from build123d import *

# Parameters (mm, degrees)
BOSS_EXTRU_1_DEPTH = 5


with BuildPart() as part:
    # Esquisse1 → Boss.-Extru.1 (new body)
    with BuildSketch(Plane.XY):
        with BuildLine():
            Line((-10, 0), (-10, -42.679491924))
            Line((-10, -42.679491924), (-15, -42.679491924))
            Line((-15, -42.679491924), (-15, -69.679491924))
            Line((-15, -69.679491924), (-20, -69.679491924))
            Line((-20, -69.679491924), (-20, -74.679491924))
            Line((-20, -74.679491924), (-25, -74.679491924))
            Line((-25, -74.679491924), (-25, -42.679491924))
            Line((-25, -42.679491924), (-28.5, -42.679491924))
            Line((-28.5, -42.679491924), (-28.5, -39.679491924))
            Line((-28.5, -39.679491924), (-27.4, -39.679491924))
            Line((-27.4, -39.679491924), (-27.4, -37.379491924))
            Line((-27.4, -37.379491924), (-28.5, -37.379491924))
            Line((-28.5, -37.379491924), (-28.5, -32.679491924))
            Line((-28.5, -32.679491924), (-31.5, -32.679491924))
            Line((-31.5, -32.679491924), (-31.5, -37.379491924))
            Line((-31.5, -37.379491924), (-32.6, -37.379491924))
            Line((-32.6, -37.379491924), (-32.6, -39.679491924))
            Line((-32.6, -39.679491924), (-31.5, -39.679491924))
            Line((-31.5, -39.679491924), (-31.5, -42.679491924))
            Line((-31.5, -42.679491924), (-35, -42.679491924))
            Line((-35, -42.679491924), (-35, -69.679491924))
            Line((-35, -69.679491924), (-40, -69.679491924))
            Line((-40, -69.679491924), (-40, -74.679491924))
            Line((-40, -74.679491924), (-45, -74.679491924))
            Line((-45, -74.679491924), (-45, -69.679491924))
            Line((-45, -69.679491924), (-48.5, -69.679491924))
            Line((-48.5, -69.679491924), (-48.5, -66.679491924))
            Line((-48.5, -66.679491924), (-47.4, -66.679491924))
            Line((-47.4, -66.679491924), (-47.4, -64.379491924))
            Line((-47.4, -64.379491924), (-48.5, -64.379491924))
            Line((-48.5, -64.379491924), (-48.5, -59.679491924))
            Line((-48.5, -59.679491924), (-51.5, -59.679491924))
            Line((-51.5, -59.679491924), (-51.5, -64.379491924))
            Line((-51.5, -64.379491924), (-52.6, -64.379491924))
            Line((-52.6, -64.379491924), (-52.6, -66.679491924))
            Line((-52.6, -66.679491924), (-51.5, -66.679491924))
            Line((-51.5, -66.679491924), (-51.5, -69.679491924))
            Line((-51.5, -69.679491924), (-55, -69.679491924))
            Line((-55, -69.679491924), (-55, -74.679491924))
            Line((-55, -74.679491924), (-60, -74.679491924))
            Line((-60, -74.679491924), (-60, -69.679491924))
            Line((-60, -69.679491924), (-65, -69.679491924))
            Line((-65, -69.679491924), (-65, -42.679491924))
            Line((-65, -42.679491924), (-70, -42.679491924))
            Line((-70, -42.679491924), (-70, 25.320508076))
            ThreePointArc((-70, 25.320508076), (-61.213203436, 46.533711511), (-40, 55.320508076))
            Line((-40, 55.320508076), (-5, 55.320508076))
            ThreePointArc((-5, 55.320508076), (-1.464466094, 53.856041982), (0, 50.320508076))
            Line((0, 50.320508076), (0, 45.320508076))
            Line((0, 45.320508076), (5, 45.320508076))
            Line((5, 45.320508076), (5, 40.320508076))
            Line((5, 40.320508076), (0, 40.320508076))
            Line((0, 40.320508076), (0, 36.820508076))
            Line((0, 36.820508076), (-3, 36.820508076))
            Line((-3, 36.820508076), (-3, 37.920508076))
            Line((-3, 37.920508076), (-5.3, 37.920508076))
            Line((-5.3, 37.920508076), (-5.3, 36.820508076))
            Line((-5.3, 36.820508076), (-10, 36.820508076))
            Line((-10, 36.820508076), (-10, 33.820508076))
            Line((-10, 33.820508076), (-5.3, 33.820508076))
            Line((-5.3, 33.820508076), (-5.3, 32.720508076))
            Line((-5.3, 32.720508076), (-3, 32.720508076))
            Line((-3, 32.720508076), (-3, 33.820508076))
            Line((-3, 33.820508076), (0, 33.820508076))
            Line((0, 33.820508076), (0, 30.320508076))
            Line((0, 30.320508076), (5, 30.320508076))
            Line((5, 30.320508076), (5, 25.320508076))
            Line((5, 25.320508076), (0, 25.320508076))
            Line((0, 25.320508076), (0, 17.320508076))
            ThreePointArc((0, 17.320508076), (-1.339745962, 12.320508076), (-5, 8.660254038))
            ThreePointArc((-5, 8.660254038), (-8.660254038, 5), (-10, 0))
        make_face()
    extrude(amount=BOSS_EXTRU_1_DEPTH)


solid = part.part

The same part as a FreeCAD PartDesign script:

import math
import FreeCAD as App
import Part
import Sketcher

V = App.Vector

doc = App.newDocument("Part")
params = doc.addObject("Spreadsheet::Sheet", "Params")
for row, (alias, value) in enumerate([
    ("sketch1_radius", "10 mm"),
    ("sketch1_radius2", "30 mm"),
    ("sketch1_width", "3 mm"),
    ("sketch1_height", "8 mm"),
    ("sketch1_height2", "68 mm"),
    ("pad1_length", "5 mm"),
], start=1):
    params.set(f"A{row}", alias)
    params.set(f"B{row}", "=" + value)
    params.setAlias(f"B{row}", alias)

body = doc.addObject("PartDesign::Body", "Body")

# Sketch on XY plane
sketch1 = doc.addObject("Sketcher::SketchObject", "Sketch")
body.addObject(sketch1)
sketch1.AttachmentSupport = (doc.XY_Plane, [""])
sketch1.MapMode = "FlatFace"
sketch1.addGeometry(Part.LineSegment(V(-10, -42.679492, 0), V(-10, 0, 0)), False)
sketch1.addGeometry(Part.ArcOfCircle(Part.Circle(V(0, 0, 0), V(0, 0, 1), 10), math.radians(120), math.radians(180)), False)
sketch1.addGeometry(Part.ArcOfCircle(Part.Circle(V(-10, 17.320508, 0), V(0, 0, 1), 10), math.radians(-60), math.radians(0)), False)
sketch1.addGeometry(Part.LineSegment(V(0, 17.320508, 0), V(0, 25.320508, 0)), False)
sketch1.addGeometry(Part.LineSegment(V(0, 25.320508, 0), V(5, 25.320508, 0)), False)
sketch1.addGeometry(Part.LineSegment(V(5, 25.320508, 0), V(5, 30.320508, 0)), False)
sketch1.addGeometry(Part.LineSegment(V(5, 30.320508, 0), V(0, 30.320508, 0)), False)
sketch1.addGeometry(Part.LineSegment(V(0, 30.320508, 0), V(0, 33.820508, 0)), False)
sketch1.addGeometry(Part.LineSegment(V(0, 33.820508, 0), V(-3, 33.820508, 0)), False)
sketch1.addGeometry(Part.LineSegment(V(-3, 33.820508, 0), V(-3, 32.720508, 0)), False)
sketch1.addGeometry(Part.LineSegment(V(-3, 32.720508, 0), V(-5.3, 32.720508, 0)), False)
sketch1.addGeometry(Part.LineSegment(V(-5.3, 32.720508, 0), V(-5.3, 33.820508, 0)), False)
sketch1.addGeometry(Part.LineSegment(V(-5.3, 33.820508, 0), V(-10, 33.820508, 0)), False)
sketch1.addGeometry(Part.LineSegment(V(-10, 33.820508, 0), V(-10, 36.820508, 0)), False)
sketch1.addGeometry(Part.LineSegment(V(-10, 36.820508, 0), V(-5.3, 36.820508, 0)), False)
sketch1.addGeometry(Part.LineSegment(V(-5.3, 36.820508, 0), V(-5.3, 37.920508, 0)), False)
sketch1.addGeometry(Part.LineSegment(V(-5.3, 37.920508, 0), V(-3, 37.920508, 0)), False)
sketch1.addGeometry(Part.LineSegment(V(-3, 37.920508, 0), V(-3, 36.820508, 0)), False)
sketch1.addGeometry(Part.LineSegment(V(-3, 36.820508, 0), V(0, 36.820508, 0)), False)
sketch1.addGeometry(Part.LineSegment(V(0, 36.820508, 0), V(0, 40.320508, 0)), False)
sketch1.addGeometry(Part.LineSegment(V(0, 40.320508, 0), V(5, 40.320508, 0)), False)
sketch1.addGeometry(Part.LineSegment(V(5, 40.320508, 0), V(5, 45.320508, 0)), False)
sketch1.addGeometry(Part.LineSegment(V(5, 45.320508, 0), V(0, 45.320508, 0)), False)
sketch1.addGeometry(Part.LineSegment(V(0, 45.320508, 0), V(0, 50.320508, 0)), False)
sketch1.addGeometry(Part.ArcOfCircle(Part.Circle(V(-5, 50.320508, 0), V(0, 0, 1), 5), math.radians(0), math.radians(90)), False)
sketch1.addGeometry(Part.LineSegment(V(-5, 55.320508, 0), V(-40, 55.320508, 0)), False)
sketch1.addGeometry(Part.ArcOfCircle(Part.Circle(V(-40, 25.320508, 0), V(0, 0, 1), 30), math.radians(90), math.radians(180)), False)
sketch1.addGeometry(Part.LineSegment(V(-70, 25.320508, 0), V(-70, -42.679492, 0)), False)
sketch1.addGeometry(Part.LineSegment(V(-70, -42.679492, 0), V(-65, -42.679492, 0)), False)
sketch1.addGeometry(Part.LineSegment(V(-65, -42.679492, 0), V(-65, -69.679492, 0)), False)
sketch1.addGeometry(Part.LineSegment(V(-65, -69.679492, 0), V(-60, -69.679492, 0)), False)
sketch1.addGeometry(Part.LineSegment(V(-60, -69.679492, 0), V(-60, -74.679492, 0)), False)
sketch1.addGeometry(Part.LineSegment(V(-60, -74.679492, 0), V(-55, -74.679492, 0)), False)
sketch1.addGeometry(Part.LineSegment(V(-55, -74.679492, 0), V(-55, -69.679492, 0)), False)
sketch1.addGeometry(Part.LineSegment(V(-55, -69.679492, 0), V(-51.5, -69.679492, 0)), False)
sketch1.addGeometry(Part.LineSegment(V(-51.5, -69.679492, 0), V(-51.5, -66.679492, 0)), False)
sketch1.addGeometry(Part.LineSegment(V(-51.5, -66.679492, 0), V(-52.6, -66.679492, 0)), False)
sketch1.addGeometry(Part.LineSegment(V(-52.6, -66.679492, 0), V(-52.6, -64.379492, 0)), False)
sketch1.addGeometry(Part.LineSegment(V(-52.6, -64.379492, 0), V(-51.5, -64.379492, 0)), False)
sketch1.addGeometry(Part.LineSegment(V(-51.5, -64.379492, 0), V(-51.5, -59.679492, 0)), False)
sketch1.addGeometry(Part.LineSegment(V(-51.5, -59.679492, 0), V(-48.5, -59.679492, 0)), False)
sketch1.addGeometry(Part.LineSegment(V(-48.5, -59.679492, 0), V(-48.5, -64.379492, 0)), False)
sketch1.addGeometry(Part.LineSegment(V(-48.5, -64.379492, 0), V(-47.4, -64.379492, 0)), False)
sketch1.addGeometry(Part.LineSegment(V(-47.4, -64.379492, 0), V(-47.4, -66.679492, 0)), False)
sketch1.addGeometry(Part.LineSegment(V(-47.4, -66.679492, 0), V(-48.5, -66.679492, 0)), False)
sketch1.addGeometry(Part.LineSegment(V(-48.5, -66.679492, 0), V(-48.5, -69.679492, 0)), False)
sketch1.addGeometry(Part.LineSegment(V(-48.5, -69.679492, 0), V(-45, -69.679492, 0)), False)
sketch1.addGeometry(Part.LineSegment(V(-45, -69.679492, 0), V(-45, -74.679492, 0)), False)
sketch1.addGeometry(Part.LineSegment(V(-45, -74.679492, 0), V(-40, -74.679492, 0)), False)
sketch1.addGeometry(Part.LineSegment(V(-40, -74.679492, 0), V(-40, -69.679492, 0)), False)
sketch1.addGeometry(Part.LineSegment(V(-40, -69.679492, 0), V(-35, -69.679492, 0)), False)
sketch1.addGeometry(Part.LineSegment(V(-35, -69.679492, 0), V(-35, -42.679492, 0)), False)
sketch1.addGeometry(Part.LineSegment(V(-35, -42.679492, 0), V(-31.5, -42.679492, 0)), False)
sketch1.addGeometry(Part.LineSegment(V(-31.5, -42.679492, 0), V(-31.5, -39.679492, 0)), False)
sketch1.addGeometry(Part.LineSegment(V(-31.5, -39.679492, 0), V(-32.6, -39.679492, 0)), False)
sketch1.addGeometry(Part.LineSegment(V(-32.6, -39.679492, 0), V(-32.6, -37.379492, 0)), False)
sketch1.addGeometry(Part.LineSegment(V(-32.6, -37.379492, 0), V(-31.5, -37.379492, 0)), False)
sketch1.addGeometry(Part.LineSegment(V(-31.5, -37.379492, 0), V(-31.5, -32.679492, 0)), False)
sketch1.addGeometry(Part.LineSegment(V(-31.5, -32.679492, 0), V(-28.5, -32.679492, 0)), False)
sketch1.addGeometry(Part.LineSegment(V(-28.5, -32.679492, 0), V(-28.5, -37.379492, 0)), False)
sketch1.addGeometry(Part.LineSegment(V(-28.5, -37.379492, 0), V(-27.4, -37.379492, 0)), False)
sketch1.addGeometry(Part.LineSegment(V(-27.4, -37.379492, 0), V(-27.4, -39.679492, 0)), False)
sketch1.addGeometry(Part.LineSegment(V(-27.4, -39.679492, 0), V(-28.5, -39.679492, 0)), False)
sketch1.addGeometry(Part.LineSegment(V(-28.5, -39.679492, 0), V(-28.5, -42.679492, 0)), False)
sketch1.addGeometry(Part.LineSegment(V(-28.5, -42.679492, 0), V(-25, -42.679492, 0)), False)
sketch1.addGeometry(Part.LineSegment(V(-25, -42.679492, 0), V(-25, -74.679492, 0)), False)
sketch1.addGeometry(Part.LineSegment(V(-25, -74.679492, 0), V(-20, -74.679492, 0)), False)
sketch1.addGeometry(Part.LineSegment(V(-20, -74.679492, 0), V(-20, -69.679492, 0)), False)
sketch1.addGeometry(Part.LineSegment(V(-20, -69.679492, 0), V(-15, -69.679492, 0)), False)
sketch1.addGeometry(Part.LineSegment(V(-15, -69.679492, 0), V(-15, -42.679492, 0)), False)
sketch1.addGeometry(Part.LineSegment(V(-15, -42.679492, 0), V(-10, -42.679492, 0)), False)
sketch1.addConstraint(Sketcher.Constraint("Tangent", 0, 2, 1, 2))
sketch1.addConstraint(Sketcher.Constraint("Tangent", 1, 1, 2, 1))
sketch1.addConstraint(Sketcher.Constraint("Tangent", 2, 2, 3, 1))
sketch1.addConstraint(Sketcher.Constraint("Coincident", 3, 2, 4, 1))
sketch1.addConstraint(Sketcher.Constraint("Coincident", 4, 2, 5, 1))
sketch1.addConstraint(Sketcher.Constraint("Coincident", 5, 2, 6, 1))
sketch1.addConstraint(Sketcher.Constraint("Coincident", 6, 2, 7, 1))
sketch1.addConstraint(Sketcher.Constraint("Coincident", 7, 2, 8, 1))
sketch1.addConstraint(Sketcher.Constraint("Coincident", 8, 2, 9, 1))
sketch1.addConstraint(Sketcher.Constraint("Coincident", 9, 2, 10, 1))
sketch1.addConstraint(Sketcher.Constraint("Coincident", 10, 2, 11, 1))
sketch1.addConstraint(Sketcher.Constraint("Coincident", 11, 2, 12, 1))
sketch1.addConstraint(Sketcher.Constraint("Coincident", 12, 2, 13, 1))
sketch1.addConstraint(Sketcher.Constraint("Coincident", 13, 2, 14, 1))
sketch1.addConstraint(Sketcher.Constraint("Coincident", 14, 2, 15, 1))
sketch1.addConstraint(Sketcher.Constraint("Coincident", 15, 2, 16, 1))
sketch1.addConstraint(Sketcher.Constraint("Coincident", 16, 2, 17, 1))
sketch1.addConstraint(Sketcher.Constraint("Coincident", 17, 2, 18, 1))
sketch1.addConstraint(Sketcher.Constraint("Coincident", 18, 2, 19, 1))
sketch1.addConstraint(Sketcher.Constraint("Coincident", 19, 2, 20, 1))
sketch1.addConstraint(Sketcher.Constraint("Coincident", 20, 2, 21, 1))
sketch1.addConstraint(Sketcher.Constraint("Coincident", 21, 2, 22, 1))
sketch1.addConstraint(Sketcher.Constraint("Coincident", 22, 2, 23, 1))
sketch1.addConstraint(Sketcher.Constraint("Tangent", 23, 2, 24, 1))
sketch1.addConstraint(Sketcher.Constraint("Tangent", 24, 2, 25, 1))
sketch1.addConstraint(Sketcher.Constraint("Tangent", 25, 2, 26, 1))
sketch1.addConstraint(Sketcher.Constraint("Tangent", 26, 2, 27, 1))
sketch1.addConstraint(Sketcher.Constraint("Coincident", 27, 2, 28, 1))
sketch1.addConstraint(Sketcher.Constraint("Coincident", 28, 2, 29, 1))
sketch1.addConstraint(Sketcher.Constraint("Coincident", 29, 2, 30, 1))
sketch1.addConstraint(Sketcher.Constraint("Coincident", 30, 2, 31, 1))
sketch1.addConstraint(Sketcher.Constraint("Coincident", 31, 2, 32, 1))
sketch1.addConstraint(Sketcher.Constraint("Coincident", 32, 2, 33, 1))
sketch1.addConstraint(Sketcher.Constraint("Coincident", 33, 2, 34, 1))
sketch1.addConstraint(Sketcher.Constraint("Coincident", 34, 2, 35, 1))
sketch1.addConstraint(Sketcher.Constraint("Coincident", 35, 2, 36, 1))
sketch1.addConstraint(Sketcher.Constraint("Coincident", 36, 2, 37, 1))
sketch1.addConstraint(Sketcher.Constraint("Coincident", 37, 2, 38, 1))
sketch1.addConstraint(Sketcher.Constraint("Coincident", 38, 2, 39, 1))
sketch1.addConstraint(Sketcher.Constraint("Coincident", 39, 2, 40, 1))
sketch1.addConstraint(Sketcher.Constraint("Coincident", 40, 2, 41, 1))
sketch1.addConstraint(Sketcher.Constraint("Coincident", 41, 2, 42, 1))
sketch1.addConstraint(Sketcher.Constraint("Coincident", 42, 2, 43, 1))
sketch1.addConstraint(Sketcher.Constraint("Coincident", 43, 2, 44, 1))
sketch1.addConstraint(Sketcher.Constraint("Coincident", 44, 2, 45, 1))
sketch1.addConstraint(Sketcher.Constraint("Coincident", 45, 2, 46, 1))
sketch1.addConstraint(Sketcher.Constraint("Coincident", 46, 2, 47, 1))
sketch1.addConstraint(Sketcher.Constraint("Coincident", 47, 2, 48, 1))
sketch1.addConstraint(Sketcher.Constraint("Coincident", 48, 2, 49, 1))
sketch1.addConstraint(Sketcher.Constraint("Coincident", 49, 2, 50, 1))
sketch1.addConstraint(Sketcher.Constraint("Coincident", 50, 2, 51, 1))
sketch1.addConstraint(Sketcher.Constraint("Coincident", 51, 2, 52, 1))
sketch1.addConstraint(Sketcher.Constraint("Coincident", 52, 2, 53, 1))
sketch1.addConstraint(Sketcher.Constraint("Coincident", 53, 2, 54, 1))
sketch1.addConstraint(Sketcher.Constraint("Coincident", 54, 2, 55, 1))
sketch1.addConstraint(Sketcher.Constraint("Coincident", 55, 2, 56, 1))
sketch1.addConstraint(Sketcher.Constraint("Coincident", 56, 2, 57, 1))
sketch1.addConstraint(Sketcher.Constraint("Coincident", 57, 2, 58, 1))
sketch1.addConstraint(Sketcher.Constraint("Coincident", 58, 2, 59, 1))
sketch1.addConstraint(Sketcher.Constraint("Coincident", 59, 2, 60, 1))
sketch1.addConstraint(Sketcher.Constraint("Coincident", 60, 2, 61, 1))
sketch1.addConstraint(Sketcher.Constraint("Coincident", 61, 2, 62, 1))
sketch1.addConstraint(Sketcher.Constraint("Coincident", 62, 2, 63, 1))
sketch1.addConstraint(Sketcher.Constraint("Coincident", 63, 2, 64, 1))
sketch1.addConstraint(Sketcher.Constraint("Coincident", 64, 2, 65, 1))
sketch1.addConstraint(Sketcher.Constraint("Coincident", 65, 2, 66, 1))
sketch1.addConstraint(Sketcher.Constraint("Coincident", 66, 2, 67, 1))
sketch1.addConstraint(Sketcher.Constraint("Coincident", 67, 2, 68, 1))
sketch1.addConstraint(Sketcher.Constraint("Coincident", 68, 2, 69, 1))
sketch1.addConstraint(Sketcher.Constraint("Coincident", 69, 2, 70, 1))
sketch1.addConstraint(Sketcher.Constraint("Coincident", 70, 2, 0, 1))
sketch1.addConstraint(Sketcher.Constraint("Vertical", 0))
sketch1.addConstraint(Sketcher.Constraint("Vertical", 3))
sketch1.addConstraint(Sketcher.Constraint("Horizontal", 4))
sketch1.addConstraint(Sketcher.Constraint("Vertical", 5))
sketch1.addConstraint(Sketcher.Constraint("Horizontal", 6))
sketch1.addConstraint(Sketcher.Constraint("Vertical", 7))
sketch1.addConstraint(Sketcher.Constraint("Horizontal", 8))
sketch1.addConstraint(Sketcher.Constraint("Vertical", 9))
sketch1.addConstraint(Sketcher.Constraint("Horizontal", 10))
sketch1.addConstraint(Sketcher.Constraint("Vertical", 11))
sketch1.addConstraint(Sketcher.Constraint("Horizontal", 12))
sketch1.addConstraint(Sketcher.Constraint("Vertical", 13))
sketch1.addConstraint(Sketcher.Constraint("Horizontal", 14))
sketch1.addConstraint(Sketcher.Constraint("Vertical", 15))
sketch1.addConstraint(Sketcher.Constraint("Horizontal", 16))
sketch1.addConstraint(Sketcher.Constraint("Vertical", 17))
sketch1.addConstraint(Sketcher.Constraint("Horizontal", 18))
sketch1.addConstraint(Sketcher.Constraint("Vertical", 19))
sketch1.addConstraint(Sketcher.Constraint("Horizontal", 20))
sketch1.addConstraint(Sketcher.Constraint("Vertical", 21))
sketch1.addConstraint(Sketcher.Constraint("Horizontal", 22))
sketch1.addConstraint(Sketcher.Constraint("Vertical", 23))
sketch1.addConstraint(Sketcher.Constraint("Horizontal", 25))
sketch1.addConstraint(Sketcher.Constraint("Vertical", 27))
sketch1.addConstraint(Sketcher.Constraint("Horizontal", 28))
sketch1.addConstraint(Sketcher.Constraint("Vertical", 29))
sketch1.addConstraint(Sketcher.Constraint("Horizontal", 30))
sketch1.addConstraint(Sketcher.Constraint("Vertical", 31))
sketch1.addConstraint(Sketcher.Constraint("Horizontal", 32))
sketch1.addConstraint(Sketcher.Constraint("Vertical", 33))
sketch1.addConstraint(Sketcher.Constraint("Horizontal", 34))
sketch1.addConstraint(Sketcher.Constraint("Vertical", 35))
sketch1.addConstraint(Sketcher.Constraint("Horizontal", 36))
sketch1.addConstraint(Sketcher.Constraint("Vertical", 37))
sketch1.addConstraint(Sketcher.Constraint("Horizontal", 38))
sketch1.addConstraint(Sketcher.Constraint("Vertical", 39))
sketch1.addConstraint(Sketcher.Constraint("Horizontal", 40))
sketch1.addConstraint(Sketcher.Constraint("Vertical", 41))
sketch1.addConstraint(Sketcher.Constraint("Horizontal", 42))
sketch1.addConstraint(Sketcher.Constraint("Vertical", 43))
sketch1.addConstraint(Sketcher.Constraint("Horizontal", 44))
sketch1.addConstraint(Sketcher.Constraint("Vertical", 45))
sketch1.addConstraint(Sketcher.Constraint("Horizontal", 46))
sketch1.addConstraint(Sketcher.Constraint("Vertical", 47))
sketch1.addConstraint(Sketcher.Constraint("Horizontal", 48))
sketch1.addConstraint(Sketcher.Constraint("Vertical", 49))
sketch1.addConstraint(Sketcher.Constraint("Horizontal", 50))
sketch1.addConstraint(Sketcher.Constraint("Vertical", 51))
sketch1.addConstraint(Sketcher.Constraint("Horizontal", 52))
sketch1.addConstraint(Sketcher.Constraint("Vertical", 53))
sketch1.addConstraint(Sketcher.Constraint("Horizontal", 54))
sketch1.addConstraint(Sketcher.Constraint("Vertical", 55))
sketch1.addConstraint(Sketcher.Constraint("Horizontal", 56))
sketch1.addConstraint(Sketcher.Constraint("Vertical", 57))
sketch1.addConstraint(Sketcher.Constraint("Horizontal", 58))
sketch1.addConstraint(Sketcher.Constraint("Vertical", 59))
sketch1.addConstraint(Sketcher.Constraint("Horizontal", 60))
sketch1.addConstraint(Sketcher.Constraint("Vertical", 61))
sketch1.addConstraint(Sketcher.Constraint("Horizontal", 62))
sketch1.addConstraint(Sketcher.Constraint("Vertical", 63))
sketch1.addConstraint(Sketcher.Constraint("Horizontal", 64))
sketch1.addConstraint(Sketcher.Constraint("Vertical", 65))
sketch1.addConstraint(Sketcher.Constraint("Horizontal", 66))
sketch1.addConstraint(Sketcher.Constraint("Vertical", 67))
sketch1.addConstraint(Sketcher.Constraint("Horizontal", 68))
sketch1.addConstraint(Sketcher.Constraint("Vertical", 69))
sketch1.addConstraint(Sketcher.Constraint("Horizontal", 70))
sketch1.addConstraint(Sketcher.Constraint("Coincident", 1, 3, -1, 1))
sketch1.addConstraint(Sketcher.Constraint("Equal", 1, 2))
sketch1.addConstraint(Sketcher.Constraint("PointOnObject", 2, 2, -2))
sketch1.addConstraint(Sketcher.Constraint("PointOnObject", 6, 2, -2))
sketch1.addConstraint(Sketcher.Constraint("PointOnObject", 18, 2, -2))
sketch1.addConstraint(Sketcher.Constraint("PointOnObject", 22, 2, -2))
sketch1.addConstraint(Sketcher.Constraint("Horizontal", 26, 3, 3, 2))
sketch1.addConstraint(Sketcher.Constraint("Horizontal", 8, 2, 11, 2))
sketch1.addConstraint(Sketcher.Constraint("Horizontal", 14, 2, 17, 2))
sketch1.addConstraint(Sketcher.Constraint("Horizontal", 30, 2, 33, 2))
sketch1.addConstraint(Sketcher.Constraint("Horizontal", 38, 2, 41, 2))
sketch1.addConstraint(Sketcher.Constraint("Horizontal", 36, 2, 43, 2))
sketch1.addConstraint(Sketcher.Constraint("Horizontal", 34, 2, 45, 2))
sketch1.addConstraint(Sketcher.Constraint("Horizontal", 32, 2, 47, 2))
sketch1.addConstraint(Sketcher.Constraint("Horizontal", 46, 2, 49, 2))
sketch1.addConstraint(Sketcher.Constraint("Horizontal", 28, 2, 51, 2))
sketch1.addConstraint(Sketcher.Constraint("Horizontal", 56, 2, 59, 2))
sketch1.addConstraint(Sketcher.Constraint("Horizontal", 54, 2, 61, 2))
sketch1.addConstraint(Sketcher.Constraint("Horizontal", 52, 2, 63, 2))
sketch1.addConstraint(Sketcher.Constraint("Horizontal", 48, 2, 65, 2))
sketch1.addConstraint(Sketcher.Constraint("Horizontal", 50, 2, 67, 2))
sketch1.addConstraint(Sketcher.Constraint("Horizontal", 64, 2, 69, 2))
sketch1.addConstraint(Sketcher.Constraint("Vertical", 24, 3, 1, 1))
sketch1.addConstraint(Sketcher.Constraint("Vertical", 0, 2, 12, 2))
sketch1.addConstraint(Sketcher.Constraint("Vertical", 11, 2, 14, 2))
sketch1.addConstraint(Sketcher.Constraint("Vertical", 9, 2, 16, 2))
sketch1.addConstraint(Sketcher.Constraint("Vertical", 5, 2, 20, 2))
sketch1.addConstraint(Sketcher.Constraint("Vertical", 35, 2, 38, 2))
sketch1.addConstraint(Sketcher.Constraint("Vertical", 41, 2, 44, 2))
sketch1.addConstraint(Sketcher.Constraint("Vertical", 25, 2, 48, 2))
sketch1.addConstraint(Sketcher.Constraint("Vertical", 53, 2, 56, 2))
sketch1.addConstraint(Sketcher.Constraint("Vertical", 59, 2, 62, 2))
sketch1.addConstraint(Sketcher.Constraint("Equal", 22, 28))
sketch1.addConstraint(Sketcher.Constraint("Equal", 28, 30))
sketch1.addConstraint(Sketcher.Constraint("Equal", 30, 32))
sketch1.addConstraint(Sketcher.Constraint("Equal", 18, 40))
sketch1.addConstraint(Sketcher.Constraint("Equal", 38, 42))
sketch1.addConstraint(Sketcher.Constraint("Equal", 34, 46))
sketch1.addConstraint(Sketcher.Constraint("Equal", 32, 48))
sketch1.addConstraint(Sketcher.Constraint("Equal", 48, 50))
sketch1.addConstraint(Sketcher.Constraint("Equal", 46, 52))
sketch1.addConstraint(Sketcher.Constraint("Equal", 44, 54))
sketch1.addConstraint(Sketcher.Constraint("Equal", 40, 58))
sketch1.addConstraint(Sketcher.Constraint("Equal", 56, 60))
sketch1.addConstraint(Sketcher.Constraint("Equal", 52, 64))
sketch1.addConstraint(Sketcher.Constraint("Equal", 50, 66))
sketch1.addConstraint(Sketcher.Constraint("Equal", 66, 68))
sketch1.addConstraint(Sketcher.Constraint("Equal", 68, 70))
sketch1.addConstraint(Sketcher.Constraint("Equal", 70, 5))
sketch1.addConstraint(Sketcher.Constraint("Equal", 64, 7))
sketch1.addConstraint(Sketcher.Constraint("Equal", 62, 9))
sketch1.addConstraint(Sketcher.Constraint("Equal", 58, 13))
sketch1.addConstraint(Sketcher.Constraint("Equal", 11, 15))
sketch1.addConstraint(Sketcher.Constraint("Equal", 7, 19))
sketch1.addConstraint(Sketcher.Constraint("Equal", 5, 21))
sketch1.addConstraint(Sketcher.Constraint("Equal", 21, 23))
sketch1.addConstraint(Sketcher.Constraint("Equal", 23, 31))
sketch1.addConstraint(Sketcher.Constraint("Equal", 13, 35))
sketch1.addConstraint(Sketcher.Constraint("Equal", 16, 37))
sketch1.addConstraint(Sketcher.Constraint("Equal", 14, 39))
sketch1.addConstraint(Sketcher.Constraint("Equal", 45, 53))
sketch1.addConstraint(Sketcher.Constraint("Equal", 43, 55))
sketch1.addConstraint(Sketcher.Constraint("Equal", 41, 57))
sketch1.addConstraint(Sketcher.Constraint("Radius", 1, 10.0))
sketch1.addConstraint(Sketcher.Constraint("Radius", 26, 30.0))
sketch1.addConstraint(Sketcher.Constraint("DistanceX", 8, 2, 8, 1, 3.0))
sketch1.addConstraint(Sketcher.Constraint("DistanceY", 3, 1, 3, 2, 8.0))
sketch1.addConstraint(Sketcher.Constraint("DistanceY", 27, 2, 27, 1, 68.0))
sketch1.addConstraint(Sketcher.Constraint("DistanceY", 29, 2, 29, 1, 27.0))
sketch1.addConstraint(Sketcher.Constraint("DistanceX", 10, 2, 10, 1, 2.3))
sketch1.addConstraint(Sketcher.Constraint("DistanceX", 36, 2, 36, 1, 1.1))
sketch1.setExpression("Constraints[201]", "Params.sketch1_radius")
sketch1.setExpression("Constraints[202]", "Params.sketch1_radius2")
sketch1.setExpression("Constraints[203]", "Params.sketch1_width")
sketch1.setExpression("Constraints[204]", "Params.sketch1_height")
sketch1.setExpression("Constraints[205]", "Params.sketch1_height2")
pad1 = doc.addObject("PartDesign::Pad", "Pad")
body.addObject(pad1)
pad1.Profile = sketch1
pad1.setExpression("Length", "Params.pad1_length")

doc.recompute()
